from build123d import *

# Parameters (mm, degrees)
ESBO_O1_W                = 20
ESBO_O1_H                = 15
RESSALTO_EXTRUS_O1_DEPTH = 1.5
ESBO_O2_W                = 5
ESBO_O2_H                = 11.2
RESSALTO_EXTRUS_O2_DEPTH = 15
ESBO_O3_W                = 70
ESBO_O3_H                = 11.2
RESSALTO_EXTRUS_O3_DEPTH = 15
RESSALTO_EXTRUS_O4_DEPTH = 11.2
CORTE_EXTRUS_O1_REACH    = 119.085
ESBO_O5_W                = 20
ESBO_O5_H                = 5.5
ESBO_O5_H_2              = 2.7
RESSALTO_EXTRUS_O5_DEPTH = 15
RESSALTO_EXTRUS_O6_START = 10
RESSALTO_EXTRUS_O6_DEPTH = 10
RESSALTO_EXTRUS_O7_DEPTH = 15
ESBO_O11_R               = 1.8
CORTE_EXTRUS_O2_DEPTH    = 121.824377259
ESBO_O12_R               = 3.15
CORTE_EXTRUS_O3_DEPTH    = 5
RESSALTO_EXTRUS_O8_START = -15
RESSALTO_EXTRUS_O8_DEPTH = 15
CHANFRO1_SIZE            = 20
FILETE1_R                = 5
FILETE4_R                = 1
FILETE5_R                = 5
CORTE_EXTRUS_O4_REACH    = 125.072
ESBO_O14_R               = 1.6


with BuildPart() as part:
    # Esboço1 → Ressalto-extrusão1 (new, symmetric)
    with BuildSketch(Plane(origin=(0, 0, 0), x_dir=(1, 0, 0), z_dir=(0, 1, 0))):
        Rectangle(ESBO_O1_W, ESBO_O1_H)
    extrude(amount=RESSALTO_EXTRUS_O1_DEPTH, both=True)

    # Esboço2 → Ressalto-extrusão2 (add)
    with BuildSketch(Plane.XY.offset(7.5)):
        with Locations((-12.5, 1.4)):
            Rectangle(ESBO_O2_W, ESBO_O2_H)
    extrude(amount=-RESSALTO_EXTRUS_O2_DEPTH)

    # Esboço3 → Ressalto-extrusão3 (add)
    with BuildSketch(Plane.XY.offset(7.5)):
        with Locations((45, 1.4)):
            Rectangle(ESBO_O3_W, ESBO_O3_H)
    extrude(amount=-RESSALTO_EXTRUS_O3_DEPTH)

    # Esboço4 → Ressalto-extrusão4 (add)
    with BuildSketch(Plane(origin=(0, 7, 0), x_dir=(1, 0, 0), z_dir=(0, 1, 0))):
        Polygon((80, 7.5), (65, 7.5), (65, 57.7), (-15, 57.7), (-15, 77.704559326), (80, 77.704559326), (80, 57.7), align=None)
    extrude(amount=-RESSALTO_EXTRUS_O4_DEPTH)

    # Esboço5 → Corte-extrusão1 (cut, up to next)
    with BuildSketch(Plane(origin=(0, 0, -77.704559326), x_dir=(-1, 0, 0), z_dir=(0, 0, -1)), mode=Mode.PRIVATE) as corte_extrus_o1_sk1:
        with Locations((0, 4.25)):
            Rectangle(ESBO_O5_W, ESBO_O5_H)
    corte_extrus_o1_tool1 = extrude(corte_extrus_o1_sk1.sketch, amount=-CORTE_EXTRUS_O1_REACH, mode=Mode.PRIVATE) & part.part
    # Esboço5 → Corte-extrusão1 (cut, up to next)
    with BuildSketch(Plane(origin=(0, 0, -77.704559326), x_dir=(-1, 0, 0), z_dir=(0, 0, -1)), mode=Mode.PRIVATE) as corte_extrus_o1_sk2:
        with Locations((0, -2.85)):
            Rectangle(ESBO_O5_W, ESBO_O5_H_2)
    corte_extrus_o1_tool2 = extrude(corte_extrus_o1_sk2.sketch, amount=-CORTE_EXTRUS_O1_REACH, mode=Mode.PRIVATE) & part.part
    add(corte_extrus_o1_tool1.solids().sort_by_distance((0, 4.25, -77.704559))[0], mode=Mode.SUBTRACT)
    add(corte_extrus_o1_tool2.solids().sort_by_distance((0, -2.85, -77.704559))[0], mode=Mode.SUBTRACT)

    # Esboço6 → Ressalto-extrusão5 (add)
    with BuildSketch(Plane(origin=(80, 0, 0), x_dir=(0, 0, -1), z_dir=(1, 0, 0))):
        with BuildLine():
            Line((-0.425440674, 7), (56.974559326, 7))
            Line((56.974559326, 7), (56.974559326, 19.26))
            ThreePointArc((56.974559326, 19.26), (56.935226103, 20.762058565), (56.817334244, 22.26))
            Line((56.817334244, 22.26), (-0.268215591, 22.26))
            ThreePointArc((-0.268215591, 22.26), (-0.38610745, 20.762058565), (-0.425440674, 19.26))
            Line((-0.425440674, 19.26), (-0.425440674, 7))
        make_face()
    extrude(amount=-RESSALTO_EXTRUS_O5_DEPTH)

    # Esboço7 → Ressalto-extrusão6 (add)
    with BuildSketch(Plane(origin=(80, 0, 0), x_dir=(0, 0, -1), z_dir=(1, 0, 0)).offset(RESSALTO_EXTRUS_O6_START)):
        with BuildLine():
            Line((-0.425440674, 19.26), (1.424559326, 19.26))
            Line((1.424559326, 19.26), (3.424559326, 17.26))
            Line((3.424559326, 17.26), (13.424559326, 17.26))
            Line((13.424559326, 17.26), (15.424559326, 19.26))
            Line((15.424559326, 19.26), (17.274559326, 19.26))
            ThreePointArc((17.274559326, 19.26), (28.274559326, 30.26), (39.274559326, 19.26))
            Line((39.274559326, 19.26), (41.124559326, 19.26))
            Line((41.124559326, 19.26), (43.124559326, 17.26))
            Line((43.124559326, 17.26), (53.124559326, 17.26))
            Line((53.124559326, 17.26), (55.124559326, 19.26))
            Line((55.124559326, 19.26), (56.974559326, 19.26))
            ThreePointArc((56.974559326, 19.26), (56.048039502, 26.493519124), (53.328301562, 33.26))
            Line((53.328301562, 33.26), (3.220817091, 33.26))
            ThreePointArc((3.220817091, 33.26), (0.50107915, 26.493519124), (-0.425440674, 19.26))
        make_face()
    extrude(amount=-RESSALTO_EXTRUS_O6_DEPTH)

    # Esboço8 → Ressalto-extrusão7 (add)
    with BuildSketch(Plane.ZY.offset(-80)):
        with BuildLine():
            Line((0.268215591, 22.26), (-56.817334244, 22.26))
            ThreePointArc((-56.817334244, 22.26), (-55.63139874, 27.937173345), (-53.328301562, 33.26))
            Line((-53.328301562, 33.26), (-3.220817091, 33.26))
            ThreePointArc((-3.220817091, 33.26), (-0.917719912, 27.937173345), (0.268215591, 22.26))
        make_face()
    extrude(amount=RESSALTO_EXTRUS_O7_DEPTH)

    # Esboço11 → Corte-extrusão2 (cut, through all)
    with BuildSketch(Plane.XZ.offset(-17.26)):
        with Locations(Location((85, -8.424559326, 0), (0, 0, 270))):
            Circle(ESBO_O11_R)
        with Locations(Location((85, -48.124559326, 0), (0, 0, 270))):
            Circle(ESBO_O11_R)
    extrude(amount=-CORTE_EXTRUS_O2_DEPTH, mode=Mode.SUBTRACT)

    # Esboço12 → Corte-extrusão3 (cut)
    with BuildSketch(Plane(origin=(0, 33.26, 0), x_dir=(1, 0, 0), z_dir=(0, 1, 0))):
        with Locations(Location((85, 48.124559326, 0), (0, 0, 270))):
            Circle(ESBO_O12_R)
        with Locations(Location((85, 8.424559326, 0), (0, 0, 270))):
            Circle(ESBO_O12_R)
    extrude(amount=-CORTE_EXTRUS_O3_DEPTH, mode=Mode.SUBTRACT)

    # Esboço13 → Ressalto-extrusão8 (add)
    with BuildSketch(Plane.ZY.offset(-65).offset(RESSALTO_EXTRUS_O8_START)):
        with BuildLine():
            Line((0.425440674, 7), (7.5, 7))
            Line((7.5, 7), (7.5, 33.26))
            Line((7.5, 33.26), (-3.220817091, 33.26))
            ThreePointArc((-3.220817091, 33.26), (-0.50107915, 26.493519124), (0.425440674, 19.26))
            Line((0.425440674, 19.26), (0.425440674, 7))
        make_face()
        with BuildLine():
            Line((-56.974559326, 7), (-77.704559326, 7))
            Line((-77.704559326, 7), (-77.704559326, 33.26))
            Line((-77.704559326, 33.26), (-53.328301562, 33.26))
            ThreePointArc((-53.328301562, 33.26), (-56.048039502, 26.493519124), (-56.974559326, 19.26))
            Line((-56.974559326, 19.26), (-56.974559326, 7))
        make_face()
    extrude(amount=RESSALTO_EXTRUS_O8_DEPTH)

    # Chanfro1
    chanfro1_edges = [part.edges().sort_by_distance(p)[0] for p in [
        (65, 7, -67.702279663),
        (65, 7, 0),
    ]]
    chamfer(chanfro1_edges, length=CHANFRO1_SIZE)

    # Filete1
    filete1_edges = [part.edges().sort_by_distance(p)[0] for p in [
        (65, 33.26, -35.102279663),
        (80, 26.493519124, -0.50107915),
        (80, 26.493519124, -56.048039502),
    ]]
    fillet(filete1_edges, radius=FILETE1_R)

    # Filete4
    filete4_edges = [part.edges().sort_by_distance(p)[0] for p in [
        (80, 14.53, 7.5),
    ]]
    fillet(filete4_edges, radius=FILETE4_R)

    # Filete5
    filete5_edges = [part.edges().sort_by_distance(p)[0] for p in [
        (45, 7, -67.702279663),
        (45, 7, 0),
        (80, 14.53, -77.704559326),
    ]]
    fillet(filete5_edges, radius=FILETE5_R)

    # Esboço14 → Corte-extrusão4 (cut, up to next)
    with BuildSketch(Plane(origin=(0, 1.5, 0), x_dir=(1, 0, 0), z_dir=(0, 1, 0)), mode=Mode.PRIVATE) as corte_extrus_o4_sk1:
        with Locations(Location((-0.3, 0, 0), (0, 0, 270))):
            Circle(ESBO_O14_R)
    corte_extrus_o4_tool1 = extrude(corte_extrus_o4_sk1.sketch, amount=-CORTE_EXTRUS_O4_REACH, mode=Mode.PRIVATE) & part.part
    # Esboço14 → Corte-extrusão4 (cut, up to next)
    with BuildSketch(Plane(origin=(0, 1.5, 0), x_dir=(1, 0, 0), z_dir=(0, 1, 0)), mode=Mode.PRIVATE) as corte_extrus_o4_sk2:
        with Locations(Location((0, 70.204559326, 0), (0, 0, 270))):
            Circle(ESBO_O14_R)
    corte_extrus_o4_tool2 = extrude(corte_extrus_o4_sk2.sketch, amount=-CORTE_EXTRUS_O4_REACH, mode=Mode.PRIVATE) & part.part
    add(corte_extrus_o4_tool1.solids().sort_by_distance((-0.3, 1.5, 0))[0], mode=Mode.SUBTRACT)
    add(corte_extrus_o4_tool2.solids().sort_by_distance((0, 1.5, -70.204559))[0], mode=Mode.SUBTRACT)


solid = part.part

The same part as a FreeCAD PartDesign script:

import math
import FreeCAD as App
import Part
import Sketcher


def edges_at(feature, points):
    """Names of the edges that pass closest to the given points."""
    edges = feature.Shape.Edges
    near = lambda p: min(range(len(edges)), key=lambda i: edges[i].distToShape(Part.Vertex(*p))[0])
    return sorted({f"Edge{near(p) + 1}" for p in points})

doc = App.newDocument("Part")
params = doc.addObject("Spreadsheet::Sheet", "Params")
for row, (alias, value) in enumerate([
    ("sketch1_width", "20 mm"),
    ("sketch1_height", "15 mm"),
    ("pad1_length", "3 mm"),
    ("sketch2_width", "5 mm"),
    ("sketch2_height", "11.2 mm"),
    ("pad2_length", "15 mm"),
    ("sketch3_width", "70 mm"),
    ("sketch3_height", "11.2 mm"),
    ("pad3_length", "15 mm"),
    ("sketch4_width", "15 mm"),
    ("sketch4_width2", "95 mm"),
    ("sketch4_height", "50.2 mm"),
    ("pad4_length", "11.2 mm"),
    ("sketch5_width", "20 mm"),
    ("sketch5_height", "5.5 mm"),
    ("sketch6_width", "20 mm"),
    ("sketch6_height", "2.7 mm"),
    ("sketch7_radius", "28.7 mm"),
    ("sketch7_width", "12.26 mm"),
    ("pad5_length", "15 mm"),
    ("sketch8_radius", "11 mm"),
    ("sketch8_radius2", "28.7 mm"),
    ("sketch8_height", "10 mm"),
    ("pad6_length", "10 mm"),
    ("sketch9_radius", "28.7 mm"),
    ("pad7_length", "15 mm"),
    ("sketch10_diameter", "3.6 mm"),
    ("sketch11_diameter", "6.3 mm"),
    ("pocket4_length", "5 mm"),
    ("sketch12_radius", "28.7 mm"),
    ("sketch12_width", "26.26 mm"),
    ("sketch12_height", "20.73 mm"),
    ("pad8_length", "15 mm"),
    ("chamfer_size", "20 mm"),
    ("fillet_radius", "5 mm"),
    ("fillet2_radius", "1 mm"),
    ("fillet3_radius", "5 mm"),
    ("sketch13_diameter", "3.2 mm"),
    ("sketch14_diameter", "3.2 mm"),
], start=1):
    params.set(f"A{row}", alias)
    params.set(f"B{row}", "=" + value)
    params.setAlias(f"B{row}", alias)

body = doc.addObject("PartDesign::Body", "Body")

sketch1 = body.newObject("Sketcher::SketchObject", "Sketch")
sketch1.AttachmentSupport = (doc.getObject("XZ_Plane"), [""])
sketch1.MapMode = "FlatFace"
sketch1.addGeometry(Part.LineSegment(App.Vector(-10, -8, 0), App.Vector(-10, 8, 0)), False)
sketch1.addGeometry(Part.LineSegment(App.Vector(-10, 8, 0), App.Vector(10, 8, 0)), False)
sketch1.addGeometry(Part.LineSegment(App.Vector(10, 8, 0), App.Vector(10, -8, 0)), False)
sketch1.addGeometry(Part.LineSegment(App.Vector(10, -8, 0), App.Vector(-10, -8, 0)), False)
sketch1.addConstraint(Sketcher.Constraint("Coincident", 0, 2, 1, 1))
sketch1.addConstraint(Sketcher.Constraint("Coincident", 1, 2, 2, 1))
sketch1.addConstraint(Sketcher.Constraint("Coincident", 2, 2, 3, 1))
sketch1.addConstraint(Sketcher.Constraint("Coincident", 3, 2, 0, 1))
sketch1.addConstraint(Sketcher.Constraint("Vertical", 0))
sketch1.addConstraint(Sketcher.Constraint("Horizontal", 1))
sketch1.addConstraint(Sketcher.Constraint("Vertical", 2))
sketch1.addConstraint(Sketcher.Constraint("Horizontal", 3))
sketch1.addConstraint(Sketcher.Constraint("Symmetric", 0, 2, 2, 2, -1, 1))
sketch1.addConstraint(Sketcher.Constraint("DistanceX", 1, 1, 1, 2, 20.0))
sketch1.addConstraint(Sketcher.Constraint("DistanceY", 0, 1, 0, 2, 15.0))
sketch1.setExpression("Constraints[9]", "Params.sketch1_width")
sketch1.setExpression("Constraints[10]", "Params.sketch1_height")
pad1 = body.newObject("PartDesign::Pad", "Pad")
pad1.Profile = sketch1
pad1.setExpression("Length", "Params.pad1_length")
pad1.Midplane = True

sketch2 = body.newObject("Sketcher::SketchObject", "Sketch001")
sketch2.AttachmentSupport = (doc.getObject("XY_Plane"), [""])
sketch2.MapMode = "FlatFace"
sketch2.AttachmentOffset = App.Placement(App.Vector(0, 0, 7.5), App.Rotation())
sketch2.addGeometry(Part.LineSegment(App.Vector(-15, 7, 0), App.Vector(-15, -4, 0)), False)
sketch2.addGeometry(Part.LineSegment(App.Vector(-15, -4, 0), App.Vector(-10, -4, 0)), False)
sketch2.addGeometry(Part.LineSegment(App.Vector(-10, -4, 0), App.Vector(-10, 7, 0)), False)
sketch2.addGeometry(Part.LineSegment(App.Vector(-10, 7, 0), App.Vector(-15, 7, 0)), False)
sketch2.addConstraint(Sketcher.Constraint("Coincident", 0, 2, 1, 1))
sketch2.addConstraint(Sketcher.Constraint("Coincident", 1, 2, 2, 1))
sketch2.addConstraint(Sketcher.Constraint("Coincident", 2, 2, 3, 1))
sketch2.addConstraint(Sketcher.Constraint("Coincident", 3, 2, 0, 1))
sketch2.addConstraint(Sketcher.Constraint("Vertical", 0))
sketch2.addConstraint(Sketcher.Constraint("Horizontal", 1))
sketch2.addConstraint(Sketcher.Constraint("Vertical", 2))
sketch2.addConstraint(Sketcher.Constraint("Horizontal", 3))
sketch2.addConstraint(Sketcher.Constraint("DistanceX", 1, 1, 1, 2, 5.0))
sketch2.addConstraint(Sketcher.Constraint("DistanceY", 0, 2, 0, 1, 11.2))
sketch2.addConstraint(Sketcher.Constraint("DistanceX", 0, 2, -1, 1, 15.0))
sketch2.addConstraint(Sketcher.Constraint("DistanceY", -1, 1, 2, 2, 7.0))
sketch2.setExpression("Constraints[8]", "Params.sketch2_width")
sketch2.setExpression("Constraints[9]", "Params.sketch2_height")
pad2 = body.newObject("PartDesign::Pad", "Pad001")
pad2.Profile = sketch2
pad2.setExpression("Length", "Params.pad2_length")
pad2.Reversed = True

sketch3 = body.newObject("Sketcher::SketchObject", "Sketch002")
sketch3.AttachmentSupport = (doc.getObject("XY_Plane"), [""])
sketch3.MapMode = "FlatFace"
sketch3.AttachmentOffset = App.Placement(App.Vector(0, 0, 7.5), App.Rotation())
sketch3.addGeometry(Part.LineSegment(App.Vector(10, 7, 0), App.Vector(10, -4, 0)), False)
sketch3.addGeometry(Part.LineSegment(App.Vector(10, -4, 0), App.Vector(80, -4, 0)), False)
sketch3.addGeometry(Part.LineSegment(App.Vector(80, -4, 0), App.Vector(80, 7, 0)), False)
sketch3.addGeometry(Part.LineSegment(App.Vector(80, 7, 0), App.Vector(10, 7, 0)), False)
sketch3.addConstraint(Sketcher.Constraint("Coincident", 0, 2, 1, 1))
sketch3.addConstraint(Sketcher.Constraint("Coincident", 1, 2, 2, 1))
sketch3.addConstraint(Sketcher.Constraint("Coincident", 2, 2, 3, 1))
sketch3.addConstraint(Sketcher.Constraint("Coincident", 3, 2, 0, 1))
sketch3.addConstraint(Sketcher.Constraint("Vertical", 0))
sketch3.addConstraint(Sketcher.Constraint("Horizontal", 1))
sketch3.addConstraint(Sketcher.Constraint("Vertical", 2))
sketch3.addConstraint(Sketcher.Constraint("Horizontal", 3))
sketch3.addConstraint(Sketcher.Constraint("DistanceX", 1, 1, 1, 2, 70.0))
sketch3.addConstraint(Sketcher.Constraint("DistanceY", 0, 2, 0, 1, 11.2))
sketch3.addConstraint(Sketcher.Constraint("DistanceX", -1, 1, 0, 2, 10.0))
sketch3.addConstraint(Sketcher.Constraint("DistanceY", -1, 1, 2, 2, 7.0))
sketch3.setExpression("Constraints[8]", "Params.sketch3_width")
sketch3.setExpression("Constraints[9]", "Params.sketch3_height")
pad3 = body.newObject("PartDesign::Pad", "Pad002")
pad3.Profile = sketch3
pad3.setExpression("Length", "Params.pad3_length")
pad3.Reversed = True

sketch4 = body.newObject("Sketcher::SketchObject", "Sketch003")
sketch4.AttachmentSupport = (doc.getObject("XZ_Plane"), [""])
sketch4.MapMode = "FlatFace"
sketch4.AttachmentOffset = App.Placement(App.Vector(0, 0, -7), App.Rotation())
sketch4.addGeometry(Part.LineSegment(App.Vector(65, -8, 0), App.Vector(80, -8, 0)), False)
sketch4.addGeometry(Part.LineSegment(App.Vector(80, -8, 0), App.Vector(80, -78, 0)), False)
sketch4.addGeometry(Part.LineSegment(App.Vector(80, -78, 0), App.Vector(-15, -78, 0)), False)
sketch4.addGeometry(Part.LineSegment(App.Vector(-15, -78, 0), App.Vector(-15, -58, 0)), False)
sketch4.addGeometry(Part.LineSegment(App.Vector(-15, -58, 0), App.Vector(65, -58, 0)), False)
sketch4.addGeometry(Part.LineSegment(App.Vector(65, -58, 0), App.Vector(65, -8, 0)), False)
sketch4.addConstraint(Sketcher.Constraint("Coincident", 0, 2, 1, 1))
sketch4.addConstraint(Sketcher.Constraint("Coincident", 1, 2, 2, 1))
sketch4.addConstraint(Sketcher.Constraint("Coincident", 2, 2, 3, 1))
sketch4.addConstraint(Sketcher.Constraint("Coincident", 3, 2, 4, 1))
sketch4.addConstraint(Sketcher.Constraint("Coincident", 4, 2, 5, 1))
sketch4.addConstraint(Sketcher.Constraint("Coincident", 5, 2, 0, 1))
sketch4.addConstraint(Sketcher.Constraint("Horizontal", 0))
sketch4.addConstraint(Sketcher.Constraint("Vertical", 1))
sketch4.addConstraint(Sketcher.Constraint("Horizontal", 2))
sketch4.addConstraint(Sketcher.Constraint("Vertical", 3))
sketch4.addConstraint(Sketcher.Constraint("Horizontal", 4))
sketch4.addConstraint(Sketcher.Constraint("Vertical", 5))
sketch4.addConstraint(Sketcher.Constraint("DistanceX", 0, 1, 0, 2, 15.0))
sketch4.addConstraint(Sketcher.Constraint("DistanceX", 2, 2, 2, 1, 95.0))
sketch4.addConstraint(Sketcher.Constraint("DistanceY", 5, 1, 5, 2, 50.2))
sketch4.addConstraint(Sketcher.Constraint("DistanceX", -1, 1, 0, 2, 80.0))
sketch4.addConstraint(Sketcher.Constraint("DistanceY", 0, 2, -1, 1, 7.5))
sketch4.addConstraint(Sketcher.Constraint("DistanceY", 1, 2, 1, 1, 70.204559))
sketch4.setExpression("Constraints[12]", "Params.sketch4_width")
sketch4.setExpression("Constraints[13]", "Params.sketch4_width2")
sketch4.setExpression("Constraints[14]", "Params.sketch4_height")
pad4 = body.newObject("PartDesign::Pad", "Pad003")
pad4.Profile = sketch4
pad4.setExpression("Length", "Params.pad4_length")

sketch5 = body.newObject("Sketcher::SketchObject", "Sketch004")
sketch5.AttachmentSupport = (doc.getObject("XY_Plane"), [""])
sketch5.MapMode = "FlatFace"
sketch5.AttachmentOffset = App.Placement(App.Vector(0, 0, -77.704559), App.Rotation())
sketch5.addGeometry(Part.LineSegment(App.Vector(10, 7, 0), App.Vector(10, 2, 0)), False)
sketch5.addGeometry(Part.LineSegment(App.Vector(10, 2, 0), App.Vector(-10, 2, 0)), False)
sketch5.addGeometry(Part.LineSegment(App.Vector(-10, 2, 0), App.Vector(-10, 7, 0)), False)
sketch5.addGeometry(Part.LineSegment(App.Vector(-10, 7, 0), App.Vector(10, 7, 0)), False)
sketch5.addConstraint(Sketcher.Constraint("Coincident", 0, 2, 1, 1))
sketch5.addConstraint(Sketcher.Constraint("Coincident", 1, 2, 2, 1))
sketch5.addConstraint(Sketcher.Constraint("Coincident", 2, 2, 3, 1))
sketch5.addConstraint(Sketcher.Constraint("Coincident", 3, 2, 0, 1))
sketch5.addConstraint(Sketcher.Constraint("Vertical", 0))
sketch5.addConstraint(Sketcher.Constraint("Horizontal", 1))
sketch5.addConstraint(Sketcher.Constraint("Vertical", 2))
sketch5.addConstraint(Sketcher.Constraint("Horizontal", 3))
sketch5.addConstraint(Sketcher.Constraint("DistanceX", 1, 2, 1, 1, 20.0))
sketch5.addConstraint(Sketcher.Constraint("DistanceY", 0, 2, 0, 1, 5.5))
sketch5.addConstraint(Sketcher.Constraint("DistanceX", -1, 1, 0, 2, 10.0))
sketch5.addConstraint(Sketcher.Constraint("DistanceY", -1, 1, 2, 2, 7.0))
sketch5.setExpression("Constraints[8]", "Params.sketch5_width")
sketch5.setExpression("Constraints[9]", "Params.sketch5_height")
pocket1 = body.newObject("PartDesign::Pocket", "Pocket")
pocket1.Profile = sketch5
pocket1.Type = "UpToFirst"
pocket1.Reversed = True

sketch6 = body.newObject("Sketcher::SketchObject", "Sketch005")
sketch6.AttachmentSupport = (doc.getObject("XY_Plane"), [""])
sketch6.MapMode = "FlatFace"
sketch6.AttachmentOffset = App.Placement(App.Vector(0, 0, -77.704559), App.Rotation())
sketch6.addGeometry(Part.LineSegment(App.Vector(10, -1.5, 0), App.Vector(10, -4.2, 0)), False)
sketch6.addGeometry(Part.LineSegment(App.Vector(10, -4.2, 0), App.Vector(-10, -4.2, 0)), False)
sketch6.addGeometry(Part.LineSegment(App.Vector(-10, -4.2, 0), App.Vector(-10, -1.5, 0)), False)
sketch6.addGeometry(Part.LineSegment(App.Vector(-10, -1.5, 0), App.Vector(10, -1.5, 0)), False)
sketch6.addConstraint(Sketcher.Constraint("Coincident", 0, 2, 1, 1))
sketch6.addConstraint(Sketcher.Constraint("Coincident", 1, 2, 2, 1))
sketch6.addConstraint(Sketcher.Constraint("Coincident", 2, 2, 3, 1))
sketch6.addConstraint(Sketcher.Constraint("Coincident", 3, 2, 0, 1))
sketch6.addConstraint(Sketcher.Constraint("Vertical", 0))
sketch6.addConstraint(Sketcher.Constraint("Horizontal", 1))
sketch6.addConstraint(Sketcher.Constraint("Vertical", 2))
sketch6.addConstraint(Sketcher.Constraint("Horizontal", 3))
sketch6.addConstraint(Sketcher.Constraint("DistanceX", 1, 2, 1, 1, 20.0))
sketch6.addConstraint(Sketcher.Constraint("DistanceY", 0, 2, 0, 1, 2.7))
sketch6.addConstraint(Sketcher.Constraint("DistanceX", -1, 1, 0, 2, 10.0))
sketch6.addConstraint(Sketcher.Constraint("DistanceY", 0, 2, -1, 1, 4.2))
sketch6.setExpression("Constraints[8]", "Params.sketch6_width")
sketch6.setExpression("Constraints[9]", "Params.sketch6_height")
pocket2 = body.newObject("PartDesign::Pocket", "Pocket001")
pocket2.Profile = sketch6
pocket2.Type = "UpToFirst"
pocket2.Reversed = True

sketch7 = body.newObject("Sketcher::SketchObject", "Sketch006")
sketch7.AttachmentSupport = (doc.getObject("YZ_Plane"), [""])
sketch7.MapMode = "FlatFace"
sketch7.AttachmentOffset = App.Placement(App.Vector(0, 0, 80), App.Rotation())
sketch7.addGeometry(Part.LineSegment(App.Vector(7, 0.4, 0), App.Vector(7, -57, 0)), False)
sketch7.addGeometry(Part.LineSegment(App.Vector(7, -57, 0), App.Vector(19.3, -57, 0)), False)
sketch7.addGeometry(Part.ArcOfCircle(Part.Circle(App.Vector(19.3, -28.3, 0), App.Vector(0, 0, 1), 28.7), math.radians(-90), math.radians(-84)), False)
sketch7.addGeometry(Part.LineSegment(App.Vector(22.3, -56.8, 0), App.Vector(22.3, 0.3, 0)), False)
sketch7.addGeometry(Part.ArcOfCircle(Part.Circle(App.Vector(19.3, -28.3, 0), App.Vector(0, 0, 1), 28.7), math.radians(84), math.radians(90)), False)
sketch7.addGeometry(Part.LineSegment(App.Vector(19.3, 0.4, 0), App.Vector(7, 0.4, 0)), False)
sketch7.addConstraint(Sketcher.Constraint("Coincident", 0, 2, 1, 1))
sketch7.addConstraint(Sketcher.Constraint("Tangent", 1, 2, 2, 1))
sketch7.addConstraint(Sketcher.Constraint("Coincident", 2, 2, 3, 1))
sketch7.addConstraint(Sketcher.Constraint("Coincident", 3, 2, 4, 1))
sketch7.addConstraint(Sketcher.Constraint("Tangent", 4, 2, 5, 1))
sketch7.addConstraint(Sketcher.Constraint("Coincident", 5, 2, 0, 1))
sketch7.addConstraint(Sketcher.Constraint("Vertical", 0))
sketch7.addConstraint(Sketcher.Constraint("Horizontal", 1))
sketch7.addConstraint(Sketcher.Constraint("Vertical", 3))
sketch7.addConstraint(Sketcher.Constraint("Horizontal", 5))
sketch7.addConstraint(Sketcher.Constraint("Coincident", 4, 3, 2, 3))
sketch7.addConstraint(Sketcher.Constraint("Equal", 2, 4))
sketch7.addConstraint(Sketcher.Constraint("Radius", 2, 28.7))
sketch7.addConstraint(Sketcher.Constraint("DistanceX", -1, 1, 0, 2, 7.0))
sketch7.addConstraint(Sketcher.Constraint("DistanceX", 1, 2, 2, 2, 3.0))
sketch7.addConstraint(Sketcher.Constraint("DistanceX", 1, 1, 1, 2, 12.26))
sketch7.addConstraint(Sketcher.Constraint("DistanceY", 2, 3, -1, 1, 28.27456))
sketch7.setExpression("Constraints[12]", "Params.sketch7_radius")
sketch7.setExpression("Constraints[15]", "Params.sketch7_width")
pad5 = body.newObject("PartDesign::Pad", "Pad004")
pad5.Profile = sketch7
pad5.setExpression("Length", "Params.pad5_length")
pad5.Reversed = True

sketch8 = body.newObject("Sketcher::SketchObject", "Sketch007")
sketch8.AttachmentSupport = (doc.getObject("YZ_Plane"), [""])
sketch8.MapMode = "FlatFace"
sketch8.AttachmentOffset = App.Placement(App.Vector(0, 0, 90), App.Rotation())
sketch8.addGeometry(Part.LineSegment(App.Vector(19.3, 0.4, 0), App.Vector(19.3, -1.4, 0)), False)
sketch8.addGeometry(Part.LineSegment(App.Vector(19.3, -1.4, 0), App.Vector(17.3, -3.4, 0)), False)
sketch8.addGeometry(Part.LineSegment(App.Vector(17.3, -3.4, 0), App.Vector(17.3, -13.4, 0)), False)
sketch8.addGeometry(Part.LineSegment(App.Vector(17.3, -13.4, 0), App.Vector(19.3, -15.4, 0)), False)
sketch8.addGeometry(Part.LineSegment(App.Vector(19.3, -15.4, 0), App.Vector(19.3, -17.3, 0)), False)
sketch8.addGeometry(Part.ArcOfCircle(Part.Circle(App.Vector(19.3, -28.3, 0), App.Vector(0, 0, 1), 11), math.radians(-90), math.radians(90)), False)
sketch8.addGeometry(Part.LineSegment(App.Vector(19.3, -39.3, 0), App.Vector(19.3, -41.1, 0)), False)
sketch8.addGeometry(Part.LineSegment(App.Vector(19.3, -41.1, 0), App.Vector(17.3, -43.1, 0)), False)
sketch8.addGeometry(Part.LineSegment(App.Vector(17.3, -43.1, 0), App.Vector(17.3, -53.1, 0)), False)
sketch8.addGeometry(Part.LineSegment(App.Vector(17.3, -53.1, 0), App.Vector(19.3, -55.1, 0)), False)
sketch8.addGeometry(Part.LineSegment(App.Vector(19.3, -55.1, 0), App.Vector(19.3, -57, 0)), False)
sketch8.addGeometry(Part.ArcOfCircle(Part.Circle(App.Vector(19.3, -28.3, 0), App.Vector(0, 0, 1), 28.7), math.radians(-90), math.radians(-61)), False)
sketch8.addGeometry(Part.LineSegment(App.Vector(33.3, -53.3, 0), App.Vector(33.3, -3.2, 0)), False)
sketch8.addGeometry(Part.ArcOfCircle(Part.Circle(App.Vector(19.3, -28.3, 0), App.Vector(0, 0, 1), 28.7), math.radians(61), math.radians(90)), False)
sketch8.addConstraint(Sketcher.Constraint("Coincident", 0, 2, 1, 1))
sketch8.addConstraint(Sketcher.Constraint("Coincident", 1, 2, 2, 1))
sketch8.addConstraint(Sketcher.Constraint("Coincident", 2, 2, 3, 1))
sketch8.addConstraint(Sketcher.Constraint("Coincident", 3, 2, 4, 1))
sketch8.addConstraint(Sketcher.Constraint("Coincident", 4, 2, 5, 2))
sketch8.addConstraint(Sketcher.Constraint("Coincident", 5, 1, 6, 1))
sketch8.addConstraint(Sketcher.Constraint("Coincident", 6, 2, 7, 1))
sketch8.addConstraint(Sketcher.Constraint("Coincident", 7, 2, 8, 1))
sketch8.addConstraint(Sketcher.Constraint("Coincident", 8, 2, 9, 1))
sketch8.addConstraint(Sketcher.Constraint("Coincident", 9, 2, 10, 1))
sketch8.addConstraint(Sketcher.Constraint("Coincident", 10, 2, 11, 1))
sketch8.addConstraint(Sketcher.Constraint("Coincident", 11, 2, 12, 1))
sketch8.addConstraint(Sketcher.Constraint("Coincident", 12, 2, 13, 1))
sketch8.addConstraint(Sketcher.Constraint("Coincident", 13, 2, 0, 1))
sketch8.addConstraint(Sketcher.Constraint("Vertical", 0))
sketch8.addConstraint(Sketcher.Constraint("Vertical", 2))
sketch8.addConstraint(Sketcher.Constraint("Vertical", 4))
sketch8.addConstraint(Sketcher.Constraint("Vertical", 6))
sketch8.addConstraint(Sketcher.Constraint("Vertical", 8))
sketch8.addConstraint(Sketcher.Constraint("Vertical", 10))
sketch8.addConstraint(Sketcher.Constraint("Vertical", 12))
sketch8.addConstraint(Sketcher.Constraint("Coincident", 11, 3, 5, 3))
sketch8.addConstraint(Sketcher.Constraint("Coincident", 13, 3, 5, 3))
sketch8.addConstraint(Sketcher.Constraint("Equal", 11, 13))
sketch8.addConstraint(Sketcher.Constraint("Perpendicular", 1, 3))
sketch8.addConstraint(Sketcher.Constraint("Perpendicular", 3, 7))
sketch8.addConstraint(Sketcher.Constraint("Perpendicular", 7, 9))
sketch8.addConstraint(Sketcher.Constraint("Vertical", 13, 3, 0, 2))
sketch8.addConstraint(Sketcher.Constraint("Vertical", 0, 2, 3, 2))
sketch8.addConstraint(Sketcher.Constraint("Vertical", 4, 2, 5, 1))
sketch8.addConstraint(Sketcher.Constraint("Vertical", 2, 2, 7, 2))
sketch8.addConstraint(Sketcher.Constraint("Vertical", 6, 2, 9, 2))
sketch8.addConstraint(Sketcher.Constraint("Equal", 0, 4))
sketch8.addConstraint(Sketcher.Constraint("Equal", 4, 6))
sketch8.addConstraint(Sketcher.Constraint("Equal", 2, 8))
sketch8.addConstraint(Sketcher.Constraint("Equal", 1, 3))
sketch8.addConstraint(Sketcher.Constraint("Radius", 5, 11.0))
sketch8.addConstraint(Sketcher.Constraint("Radius", 11, 28.7))
sketch8.addConstraint(Sketcher.Constraint("DistanceY", 2, 2, 2, 1, 10.0))
sketch8.addConstraint(Sketcher.Constraint("DistanceX", 1, 2, 0, 2, 2.0))
sketch8.addConstraint(Sketcher.Constraint("DistanceX", 9, 2, 11, 2, 14.0))
sketch8.addConstraint(Sketcher.Constraint("DistanceX", -1, 1, 5, 3, 19.26))
sketch8.addConstraint(Sketcher.Constraint("DistanceY", 11, 2, -1, 1, 53.328302))
sketch8.setExpression("Constraints[36]", "Params.sketch8_radius")
sketch8.setExpression("Constraints[37]", "Params.sketch8_radius2")
sketch8.setExpression("Constraints[38]", "Params.sketch8_height")
pad6 = body.newObject("PartDesign::Pad", "Pad005")
pad6.Profile = sketch8
pad6.setExpression("Length", "Params.pad6_length")
pad6.Reversed = True

sketch9 = body.newObject("Sketcher::SketchObject", "Sketch008")
sketch9.AttachmentSupport = (doc.getObject("YZ_Plane"), [""])
sketch9.MapMode = "FlatFace"
sketch9.AttachmentOffset = App.Placement(App.Vector(0, 0, 80), App.Rotation())
sketch9.addGeometry(Part.LineSegment(App.Vector(22, -57, 0), App.Vector(22, 0, 0)), False)
sketch9.addGeometry(Part.ArcOfCircle(Part.Circle(App.Vector(19, -28, 0), App.Vector(0, 0, 1), 29), math.radians(61), math.radians(84)), False)
sketch9.addGeometry(Part.LineSegment(App.Vector(33, -3, 0), App.Vector(33, -53, 0)), False)
sketch9.addGeometry(Part.ArcOfCircle(Part.Circle(App.Vector(19, -28, 0), App.Vector(0, 0, 1), 29), math.radians(-84), math.radians(-61)), False)
sketch9.addConstraint(Sketcher.Constraint("Coincident", 0, 2, 1, 2))
sketch9.addConstraint(Sketcher.Constraint("Coincident", 1, 1, 2, 1))
sketch9.addConstraint(Sketcher.Constraint("Coincident", 2, 2, 3, 2))
sketch9.addConstraint(Sketcher.Constraint("Coincident", 3, 1, 0, 1))
sketch9.addConstraint(Sketcher.Constraint("Vertical", 0))
sketch9.addConstraint(Sketcher.Constraint("Vertical", 2))
sketch9.addConstraint(Sketcher.Constraint("Coincident", 3, 3, 1, 3))
sketch9.addConstraint(Sketcher.Constraint("Equal", 1, 3))
sketch9.addConstraint(Sketcher.Constraint("Radius", 1, 28.7))
sketch9.addConstraint(Sketcher.Constraint("DistanceX", 3, 3, 0, 2, 3.0))
sketch9.addConstraint(Sketcher.Constraint("DistanceX", 0, 2, 1, 1, 11.0))
sketch9.addConstraint(Sketcher.Constraint("DistanceX", -1, 1, 1, 3, 19.26))
sketch9.addConstraint(Sketcher.Constraint("DistanceY", 2, 2, -1, 1, 53.328302))
sketch9.setExpression("Constraints[8]", "Params.sketch9_radius")
pad7 = body.newObject("PartDesign::Pad", "Pad006")
pad7.Profile = sketch9
pad7.setExpression("Length", "Params.pad7_length")
pad7.Reversed = True

sketch10 = body.newObject("Sketcher::SketchObject", "Sketch009")
sketch10.AttachmentSupport = (doc.getObject("XZ_Plane"), [""])
sketch10.MapMode = "FlatFace"
sketch10.AttachmentOffset = App.Placement(App.Vector(0, 0, -17.26), App.Rotation())
sketch10.addGeometry(Part.Circle(App.Vector(85, -8.4, 0), App.Vector(0, 0, 1), 1.8), False)
sketch10.addGeometry(Part.Circle(App.Vector(85, -48.1, 0), App.Vector(0, 0, 1), 1.8), False)
sketch10.addConstraint(Sketcher.Constraint("Equal", 0, 1))
sketch10.addConstraint(Sketcher.Constraint("Vertical", 0, 3, 1, 3))
sketch10.addConstraint(Sketcher.Constraint("Diameter", 0, 3.6))
sketch10.addConstraint(Sketcher.Constraint("DistanceX", -1, 1, 0, 3, 85.0))
sketch10.addConstraint(Sketcher.Constraint("DistanceY", 1, 3, 0, 3, 39.7))
sketch10.addConstraint(Sketcher.Constraint("DistanceY", 0, 3, -1, 1, 8.424559))
sketch10.setExpression("Constraints[2]", "Params.sketch10_diameter")
pocket3 = body.newObject("PartDesign::Pocket", "Pocket002")
pocket3.Profile = sketch10
pocket3.Type = "ThroughAll"

sketch11 = body.newObject("Sketcher::SketchObject", "Sketch010")
sketch11.AttachmentSupport = (doc.getObject("XZ_Plane"), [""])
sketch11.MapMode = "FlatFace"
sketch11.AttachmentOffset = App.Placement(App.Vector(0, 0, -33.26), App.Rotation())
sketch11.addGeometry(Part.Circle(App.Vector(85, -48.1, 0), App.Vector(0, 0, 1), 3.1), False)
sketch11.addGeometry(Part.Circle(App.Vector(85, -8.4, 0), App.Vector(0, 0, 1), 3.1), False)
sketch11.addConstraint(Sketcher.Constraint("Equal", 0, 1))
sketch11.addConstraint(Sketcher.Constraint("Vertical", 0, 3, 1, 3))
sketch11.addConstraint(Sketcher.Constraint("Diameter", 0, 6.3))
sketch11.addConstraint(Sketcher.Constraint("DistanceX", -1, 1, 0, 3, 85.0))
sketch11.addConstraint(Sketcher.Constraint("DistanceY", 0, 3, 1, 3, 39.7))
sketch11.addConstraint(Sketcher.Constraint("DistanceY", 0, 3, -1, 1, 48.124559))
sketch11.setExpression("Constraints[2]", "Params.sketch11_diameter")
pocket4 = body.newObject("PartDesign::Pocket", "Pocket003")
pocket4.Profile = sketch11
pocket4.setExpression("Length", "Params.pocket4_length")
pocket4.Reversed = True

sketch12 = body.newObject("Sketcher::SketchObject", "Sketch011")
sketch12.AttachmentSupport = (doc.getObject("YZ_Plane"), [""])
sketch12.MapMode = "FlatFace"
sketch12.AttachmentOffset = App.Placement(App.Vector(0, 0, 80), App.Rotation())
sketch12.addGeometry(Part.LineSegment(App.Vector(7, 0, 0), App.Vector(7, 8, 0)), False)
sketch12.addGeometry(Part.LineSegment(App.Vector(7, 8, 0), App.Vector(33, 8, 0)), False)
sketch12.addGeometry(Part.LineSegment(App.Vector(33, 8, 0), App.Vector(33, -3, 0)), False)
sketch12.addGeometry(Part.ArcOfCircle(Part.Circle(App.Vector(19, -28, 0), App.Vector(0, 0, 1), 29), math.radians(61), math.radians(90)), False)
sketch12.addGeometry(Part.LineSegment(App.Vector(19, 0, 0), App.Vector(7, 0, 0)), False)
sketch12.addGeometry(Part.LineSegment(App.Vector(7, -78, 0), App.Vector(7, -57, 0)), False)
sketch12.addGeometry(Part.LineSegment(App.Vector(7, -57, 0), App.Vector(19, -57, 0)), False)
sketch12.addGeometry(Part.ArcOfCircle(Part.Circle(App.Vector(19, -28, 0), App.Vector(0, 0, 1), 29), math.radians(-90), math.radians(-61)), False)
sketch12.addGeometry(Part.LineSegment(App.Vector(33, -53, 0), App.Vector(33, -78, 0)), False)
sketch12.addGeometry(Part.LineSegment(App.Vector(33, -78, 0), App.Vector(7, -78, 0)), False)
sketch12.addConstraint(Sketcher.Constraint("Coincident", 0, 2, 1, 1))
sketch12.addConstraint(Sketcher.Constraint("Coincident", 1, 2, 2, 1))
sketch12.addConstraint(Sketcher.Constraint("Coincident", 2, 2, 3, 1))
sketch12.addConstraint(Sketcher.Constraint("Tangent", 3, 2, 4, 1))
sketch12.addConstraint(Sketcher.Constraint("Coincident", 4, 2, 0, 1))
sketch12.addConstraint(Sketcher.Constraint("Coincident", 5, 2, 6, 1))
sketch12.addConstraint(Sketcher.Constraint("Tangent", 6, 2, 7, 1))
sketch12.addConstraint(Sketcher.Constraint("Coincident", 7, 2, 8, 1))
sketch12.addConstraint(Sketcher.Constraint("Coincident", 8, 2, 9, 1))
sketch12.addConstraint(Sketcher.Constraint("Coincident", 9, 2, 5, 1))
sketch12.addConstraint(Sketcher.Constraint("Vertical", 0))
sketch12.addConstraint(Sketcher.Constraint("Horizontal", 1))
sketch12.addConstraint(Sketcher.Constraint("Vertical", 2))
sketch12.addConstraint(Sketcher.Constraint("Horizontal", 4))
sketch12.addConstraint(Sketcher.Constraint("Vertical", 5))
sketch12.addConstraint(Sketcher.Constraint("Horizontal", 6))
sketch12.addConstraint(Sketcher.Constraint("Vertical", 8))
sketch12.addConstraint(Sketcher.Constraint("Horizontal", 9))
sketch12.addConstraint(Sketcher.Constraint("Coincident", 7, 3, 3, 3))
sketch12.addConstraint(Sketcher.Constraint("Equal", 3, 7))
sketch12.addConstraint(Sketcher.Constraint("Vertical", 4, 2, 5, 2))
sketch12.addConstraint(Sketcher.Constraint("Vertical", 2, 2, 7, 2))
sketch12.addConstraint(Sketcher.Constraint("Radius", 3, 28.7))
sketch12.addConstraint(Sketcher.Constraint("DistanceX", -1, 1, 0, 2, 7.0))
sketch12.addConstraint(Sketcher.Constraint("DistanceX", 3, 3, 1, 2, 14.0))
sketch12.addConstraint(Sketcher.Constraint("DistanceX", 1, 1, 1, 2, 26.26))
sketch12.addConstraint(Sketcher.Constraint("DistanceY", 5, 1, 5, 2, 20.73))
sketch12.addConstraint(Sketcher.Constraint("DistanceY", -1, 1, 0, 2, 7.5))
sketch12.addConstraint(Sketcher.Constraint("DistanceY", 0, 1, 0, 2, 7.074559))
sketch12.setExpression("Constraints[22]", "Params.sketch12_radius")
sketch12.setExpression("Constraints[25]", "Params.sketch12_width")
sketch12.setExpression("Constraints[26]", "Params.sketch12_height")
pad8 = body.newObject("PartDesign::Pad", "Pad007")
pad8.Profile = sketch12
pad8.setExpression("Length", "Params.pad8_length")
pad8.Reversed = True
doc.recompute()

chamfer = body.newObject("PartDesign::Chamfer", "Chamfer")
chamfer.Base = (pad8, edges_at(pad8, [(65, 7, -67.702), (65, 7, 0)]))
chamfer.setExpression("Size", "Params.chamfer_size")
doc.recompute()

fillet = body.newObject("PartDesign::Fillet", "Fillet")
fillet.Base = (chamfer, edges_at(chamfer, [(65, 33.26, -35.102), (80, 27.937, -0.918), (80, 27.937, -55.631)]))
fillet.setExpression("Radius", "Params.fillet_radius")
doc.recompute()

fillet2 = body.newObject("PartDesign::Fillet", "Fillet001")
fillet2.Base = (fillet, edges_at(fillet, [(80, 14.53, 7.5)]))
fillet2.setExpression("Radius", "Params.fillet2_radius")
doc.recompute()

fillet3 = body.newObject("PartDesign::Fillet", "Fillet002")
fillet3.Base = (fillet2, edges_at(fillet2, [(45, 7, -67.702), (45, 7, 0), (80, 14.53, -77.705)]))
fillet3.setExpression("Radius", "Params.fillet3_radius")

sketch13 = body.newObject("Sketcher::SketchObject", "Sketch012")
sketch13.AttachmentSupport = (doc.getObject("XZ_Plane"), [""])
sketch13.MapMode = "FlatFace"
sketch13.AttachmentOffset = App.Placement(App.Vector(0, 0, -1.5), App.Rotation())
sketch13.addGeometry(Part.Circle(App.Vector(-0.3, 0, 0), App.Vector(0, 0, 1), 1.6), False)
sketch13.addConstraint(Sketcher.Constraint("PointOnObject", 0, 3, -1))
sketch13.addConstraint(Sketcher.Constraint("Diameter", 0, 3.2))
sketch13.addConstraint(Sketcher.Constraint("DistanceX", 0, 3, -1, 1, 0.3))
sketch13.setExpression("Constraints[1]", "Params.sketch13_diameter")
pocket5 = body.newObject("PartDesign::Pocket", "Pocket004")
pocket5.Profile = sketch13
pocket5.Type = "UpToFirst"
pocket5.Reversed = True

sketch14 = body.newObject("Sketcher::SketchObject", "Sketch013")
sketch14.AttachmentSupport = (doc.getObject("XZ_Plane"), [""])
sketch14.MapMode = "FlatFace"
sketch14.AttachmentOffset = App.Placement(App.Vector(0, 0, -1.5), App.Rotation())
sketch14.addGeometry(Part.Circle(App.Vector(0, -70.2, 0), App.Vector(0, 0, 1), 1.6), False)
sketch14.addConstraint(Sketcher.Constraint("PointOnObject", 0, 3, -2))
sketch14.addConstraint(Sketcher.Constraint("Diameter", 0, 3.2))
sketch14.addConstraint(Sketcher.Constraint("DistanceY", 0, 3, -1, 1, 70.204559))
sketch14.setExpression("Constraints[1]", "Params.sketch14_diameter")
pocket6 = body.newObject("PartDesign::Pocket", "Pocket005")
pocket6.Profile = sketch14
pocket6.Type = "UpToFirst"
pocket6.Reversed = True

doc.recompute()
